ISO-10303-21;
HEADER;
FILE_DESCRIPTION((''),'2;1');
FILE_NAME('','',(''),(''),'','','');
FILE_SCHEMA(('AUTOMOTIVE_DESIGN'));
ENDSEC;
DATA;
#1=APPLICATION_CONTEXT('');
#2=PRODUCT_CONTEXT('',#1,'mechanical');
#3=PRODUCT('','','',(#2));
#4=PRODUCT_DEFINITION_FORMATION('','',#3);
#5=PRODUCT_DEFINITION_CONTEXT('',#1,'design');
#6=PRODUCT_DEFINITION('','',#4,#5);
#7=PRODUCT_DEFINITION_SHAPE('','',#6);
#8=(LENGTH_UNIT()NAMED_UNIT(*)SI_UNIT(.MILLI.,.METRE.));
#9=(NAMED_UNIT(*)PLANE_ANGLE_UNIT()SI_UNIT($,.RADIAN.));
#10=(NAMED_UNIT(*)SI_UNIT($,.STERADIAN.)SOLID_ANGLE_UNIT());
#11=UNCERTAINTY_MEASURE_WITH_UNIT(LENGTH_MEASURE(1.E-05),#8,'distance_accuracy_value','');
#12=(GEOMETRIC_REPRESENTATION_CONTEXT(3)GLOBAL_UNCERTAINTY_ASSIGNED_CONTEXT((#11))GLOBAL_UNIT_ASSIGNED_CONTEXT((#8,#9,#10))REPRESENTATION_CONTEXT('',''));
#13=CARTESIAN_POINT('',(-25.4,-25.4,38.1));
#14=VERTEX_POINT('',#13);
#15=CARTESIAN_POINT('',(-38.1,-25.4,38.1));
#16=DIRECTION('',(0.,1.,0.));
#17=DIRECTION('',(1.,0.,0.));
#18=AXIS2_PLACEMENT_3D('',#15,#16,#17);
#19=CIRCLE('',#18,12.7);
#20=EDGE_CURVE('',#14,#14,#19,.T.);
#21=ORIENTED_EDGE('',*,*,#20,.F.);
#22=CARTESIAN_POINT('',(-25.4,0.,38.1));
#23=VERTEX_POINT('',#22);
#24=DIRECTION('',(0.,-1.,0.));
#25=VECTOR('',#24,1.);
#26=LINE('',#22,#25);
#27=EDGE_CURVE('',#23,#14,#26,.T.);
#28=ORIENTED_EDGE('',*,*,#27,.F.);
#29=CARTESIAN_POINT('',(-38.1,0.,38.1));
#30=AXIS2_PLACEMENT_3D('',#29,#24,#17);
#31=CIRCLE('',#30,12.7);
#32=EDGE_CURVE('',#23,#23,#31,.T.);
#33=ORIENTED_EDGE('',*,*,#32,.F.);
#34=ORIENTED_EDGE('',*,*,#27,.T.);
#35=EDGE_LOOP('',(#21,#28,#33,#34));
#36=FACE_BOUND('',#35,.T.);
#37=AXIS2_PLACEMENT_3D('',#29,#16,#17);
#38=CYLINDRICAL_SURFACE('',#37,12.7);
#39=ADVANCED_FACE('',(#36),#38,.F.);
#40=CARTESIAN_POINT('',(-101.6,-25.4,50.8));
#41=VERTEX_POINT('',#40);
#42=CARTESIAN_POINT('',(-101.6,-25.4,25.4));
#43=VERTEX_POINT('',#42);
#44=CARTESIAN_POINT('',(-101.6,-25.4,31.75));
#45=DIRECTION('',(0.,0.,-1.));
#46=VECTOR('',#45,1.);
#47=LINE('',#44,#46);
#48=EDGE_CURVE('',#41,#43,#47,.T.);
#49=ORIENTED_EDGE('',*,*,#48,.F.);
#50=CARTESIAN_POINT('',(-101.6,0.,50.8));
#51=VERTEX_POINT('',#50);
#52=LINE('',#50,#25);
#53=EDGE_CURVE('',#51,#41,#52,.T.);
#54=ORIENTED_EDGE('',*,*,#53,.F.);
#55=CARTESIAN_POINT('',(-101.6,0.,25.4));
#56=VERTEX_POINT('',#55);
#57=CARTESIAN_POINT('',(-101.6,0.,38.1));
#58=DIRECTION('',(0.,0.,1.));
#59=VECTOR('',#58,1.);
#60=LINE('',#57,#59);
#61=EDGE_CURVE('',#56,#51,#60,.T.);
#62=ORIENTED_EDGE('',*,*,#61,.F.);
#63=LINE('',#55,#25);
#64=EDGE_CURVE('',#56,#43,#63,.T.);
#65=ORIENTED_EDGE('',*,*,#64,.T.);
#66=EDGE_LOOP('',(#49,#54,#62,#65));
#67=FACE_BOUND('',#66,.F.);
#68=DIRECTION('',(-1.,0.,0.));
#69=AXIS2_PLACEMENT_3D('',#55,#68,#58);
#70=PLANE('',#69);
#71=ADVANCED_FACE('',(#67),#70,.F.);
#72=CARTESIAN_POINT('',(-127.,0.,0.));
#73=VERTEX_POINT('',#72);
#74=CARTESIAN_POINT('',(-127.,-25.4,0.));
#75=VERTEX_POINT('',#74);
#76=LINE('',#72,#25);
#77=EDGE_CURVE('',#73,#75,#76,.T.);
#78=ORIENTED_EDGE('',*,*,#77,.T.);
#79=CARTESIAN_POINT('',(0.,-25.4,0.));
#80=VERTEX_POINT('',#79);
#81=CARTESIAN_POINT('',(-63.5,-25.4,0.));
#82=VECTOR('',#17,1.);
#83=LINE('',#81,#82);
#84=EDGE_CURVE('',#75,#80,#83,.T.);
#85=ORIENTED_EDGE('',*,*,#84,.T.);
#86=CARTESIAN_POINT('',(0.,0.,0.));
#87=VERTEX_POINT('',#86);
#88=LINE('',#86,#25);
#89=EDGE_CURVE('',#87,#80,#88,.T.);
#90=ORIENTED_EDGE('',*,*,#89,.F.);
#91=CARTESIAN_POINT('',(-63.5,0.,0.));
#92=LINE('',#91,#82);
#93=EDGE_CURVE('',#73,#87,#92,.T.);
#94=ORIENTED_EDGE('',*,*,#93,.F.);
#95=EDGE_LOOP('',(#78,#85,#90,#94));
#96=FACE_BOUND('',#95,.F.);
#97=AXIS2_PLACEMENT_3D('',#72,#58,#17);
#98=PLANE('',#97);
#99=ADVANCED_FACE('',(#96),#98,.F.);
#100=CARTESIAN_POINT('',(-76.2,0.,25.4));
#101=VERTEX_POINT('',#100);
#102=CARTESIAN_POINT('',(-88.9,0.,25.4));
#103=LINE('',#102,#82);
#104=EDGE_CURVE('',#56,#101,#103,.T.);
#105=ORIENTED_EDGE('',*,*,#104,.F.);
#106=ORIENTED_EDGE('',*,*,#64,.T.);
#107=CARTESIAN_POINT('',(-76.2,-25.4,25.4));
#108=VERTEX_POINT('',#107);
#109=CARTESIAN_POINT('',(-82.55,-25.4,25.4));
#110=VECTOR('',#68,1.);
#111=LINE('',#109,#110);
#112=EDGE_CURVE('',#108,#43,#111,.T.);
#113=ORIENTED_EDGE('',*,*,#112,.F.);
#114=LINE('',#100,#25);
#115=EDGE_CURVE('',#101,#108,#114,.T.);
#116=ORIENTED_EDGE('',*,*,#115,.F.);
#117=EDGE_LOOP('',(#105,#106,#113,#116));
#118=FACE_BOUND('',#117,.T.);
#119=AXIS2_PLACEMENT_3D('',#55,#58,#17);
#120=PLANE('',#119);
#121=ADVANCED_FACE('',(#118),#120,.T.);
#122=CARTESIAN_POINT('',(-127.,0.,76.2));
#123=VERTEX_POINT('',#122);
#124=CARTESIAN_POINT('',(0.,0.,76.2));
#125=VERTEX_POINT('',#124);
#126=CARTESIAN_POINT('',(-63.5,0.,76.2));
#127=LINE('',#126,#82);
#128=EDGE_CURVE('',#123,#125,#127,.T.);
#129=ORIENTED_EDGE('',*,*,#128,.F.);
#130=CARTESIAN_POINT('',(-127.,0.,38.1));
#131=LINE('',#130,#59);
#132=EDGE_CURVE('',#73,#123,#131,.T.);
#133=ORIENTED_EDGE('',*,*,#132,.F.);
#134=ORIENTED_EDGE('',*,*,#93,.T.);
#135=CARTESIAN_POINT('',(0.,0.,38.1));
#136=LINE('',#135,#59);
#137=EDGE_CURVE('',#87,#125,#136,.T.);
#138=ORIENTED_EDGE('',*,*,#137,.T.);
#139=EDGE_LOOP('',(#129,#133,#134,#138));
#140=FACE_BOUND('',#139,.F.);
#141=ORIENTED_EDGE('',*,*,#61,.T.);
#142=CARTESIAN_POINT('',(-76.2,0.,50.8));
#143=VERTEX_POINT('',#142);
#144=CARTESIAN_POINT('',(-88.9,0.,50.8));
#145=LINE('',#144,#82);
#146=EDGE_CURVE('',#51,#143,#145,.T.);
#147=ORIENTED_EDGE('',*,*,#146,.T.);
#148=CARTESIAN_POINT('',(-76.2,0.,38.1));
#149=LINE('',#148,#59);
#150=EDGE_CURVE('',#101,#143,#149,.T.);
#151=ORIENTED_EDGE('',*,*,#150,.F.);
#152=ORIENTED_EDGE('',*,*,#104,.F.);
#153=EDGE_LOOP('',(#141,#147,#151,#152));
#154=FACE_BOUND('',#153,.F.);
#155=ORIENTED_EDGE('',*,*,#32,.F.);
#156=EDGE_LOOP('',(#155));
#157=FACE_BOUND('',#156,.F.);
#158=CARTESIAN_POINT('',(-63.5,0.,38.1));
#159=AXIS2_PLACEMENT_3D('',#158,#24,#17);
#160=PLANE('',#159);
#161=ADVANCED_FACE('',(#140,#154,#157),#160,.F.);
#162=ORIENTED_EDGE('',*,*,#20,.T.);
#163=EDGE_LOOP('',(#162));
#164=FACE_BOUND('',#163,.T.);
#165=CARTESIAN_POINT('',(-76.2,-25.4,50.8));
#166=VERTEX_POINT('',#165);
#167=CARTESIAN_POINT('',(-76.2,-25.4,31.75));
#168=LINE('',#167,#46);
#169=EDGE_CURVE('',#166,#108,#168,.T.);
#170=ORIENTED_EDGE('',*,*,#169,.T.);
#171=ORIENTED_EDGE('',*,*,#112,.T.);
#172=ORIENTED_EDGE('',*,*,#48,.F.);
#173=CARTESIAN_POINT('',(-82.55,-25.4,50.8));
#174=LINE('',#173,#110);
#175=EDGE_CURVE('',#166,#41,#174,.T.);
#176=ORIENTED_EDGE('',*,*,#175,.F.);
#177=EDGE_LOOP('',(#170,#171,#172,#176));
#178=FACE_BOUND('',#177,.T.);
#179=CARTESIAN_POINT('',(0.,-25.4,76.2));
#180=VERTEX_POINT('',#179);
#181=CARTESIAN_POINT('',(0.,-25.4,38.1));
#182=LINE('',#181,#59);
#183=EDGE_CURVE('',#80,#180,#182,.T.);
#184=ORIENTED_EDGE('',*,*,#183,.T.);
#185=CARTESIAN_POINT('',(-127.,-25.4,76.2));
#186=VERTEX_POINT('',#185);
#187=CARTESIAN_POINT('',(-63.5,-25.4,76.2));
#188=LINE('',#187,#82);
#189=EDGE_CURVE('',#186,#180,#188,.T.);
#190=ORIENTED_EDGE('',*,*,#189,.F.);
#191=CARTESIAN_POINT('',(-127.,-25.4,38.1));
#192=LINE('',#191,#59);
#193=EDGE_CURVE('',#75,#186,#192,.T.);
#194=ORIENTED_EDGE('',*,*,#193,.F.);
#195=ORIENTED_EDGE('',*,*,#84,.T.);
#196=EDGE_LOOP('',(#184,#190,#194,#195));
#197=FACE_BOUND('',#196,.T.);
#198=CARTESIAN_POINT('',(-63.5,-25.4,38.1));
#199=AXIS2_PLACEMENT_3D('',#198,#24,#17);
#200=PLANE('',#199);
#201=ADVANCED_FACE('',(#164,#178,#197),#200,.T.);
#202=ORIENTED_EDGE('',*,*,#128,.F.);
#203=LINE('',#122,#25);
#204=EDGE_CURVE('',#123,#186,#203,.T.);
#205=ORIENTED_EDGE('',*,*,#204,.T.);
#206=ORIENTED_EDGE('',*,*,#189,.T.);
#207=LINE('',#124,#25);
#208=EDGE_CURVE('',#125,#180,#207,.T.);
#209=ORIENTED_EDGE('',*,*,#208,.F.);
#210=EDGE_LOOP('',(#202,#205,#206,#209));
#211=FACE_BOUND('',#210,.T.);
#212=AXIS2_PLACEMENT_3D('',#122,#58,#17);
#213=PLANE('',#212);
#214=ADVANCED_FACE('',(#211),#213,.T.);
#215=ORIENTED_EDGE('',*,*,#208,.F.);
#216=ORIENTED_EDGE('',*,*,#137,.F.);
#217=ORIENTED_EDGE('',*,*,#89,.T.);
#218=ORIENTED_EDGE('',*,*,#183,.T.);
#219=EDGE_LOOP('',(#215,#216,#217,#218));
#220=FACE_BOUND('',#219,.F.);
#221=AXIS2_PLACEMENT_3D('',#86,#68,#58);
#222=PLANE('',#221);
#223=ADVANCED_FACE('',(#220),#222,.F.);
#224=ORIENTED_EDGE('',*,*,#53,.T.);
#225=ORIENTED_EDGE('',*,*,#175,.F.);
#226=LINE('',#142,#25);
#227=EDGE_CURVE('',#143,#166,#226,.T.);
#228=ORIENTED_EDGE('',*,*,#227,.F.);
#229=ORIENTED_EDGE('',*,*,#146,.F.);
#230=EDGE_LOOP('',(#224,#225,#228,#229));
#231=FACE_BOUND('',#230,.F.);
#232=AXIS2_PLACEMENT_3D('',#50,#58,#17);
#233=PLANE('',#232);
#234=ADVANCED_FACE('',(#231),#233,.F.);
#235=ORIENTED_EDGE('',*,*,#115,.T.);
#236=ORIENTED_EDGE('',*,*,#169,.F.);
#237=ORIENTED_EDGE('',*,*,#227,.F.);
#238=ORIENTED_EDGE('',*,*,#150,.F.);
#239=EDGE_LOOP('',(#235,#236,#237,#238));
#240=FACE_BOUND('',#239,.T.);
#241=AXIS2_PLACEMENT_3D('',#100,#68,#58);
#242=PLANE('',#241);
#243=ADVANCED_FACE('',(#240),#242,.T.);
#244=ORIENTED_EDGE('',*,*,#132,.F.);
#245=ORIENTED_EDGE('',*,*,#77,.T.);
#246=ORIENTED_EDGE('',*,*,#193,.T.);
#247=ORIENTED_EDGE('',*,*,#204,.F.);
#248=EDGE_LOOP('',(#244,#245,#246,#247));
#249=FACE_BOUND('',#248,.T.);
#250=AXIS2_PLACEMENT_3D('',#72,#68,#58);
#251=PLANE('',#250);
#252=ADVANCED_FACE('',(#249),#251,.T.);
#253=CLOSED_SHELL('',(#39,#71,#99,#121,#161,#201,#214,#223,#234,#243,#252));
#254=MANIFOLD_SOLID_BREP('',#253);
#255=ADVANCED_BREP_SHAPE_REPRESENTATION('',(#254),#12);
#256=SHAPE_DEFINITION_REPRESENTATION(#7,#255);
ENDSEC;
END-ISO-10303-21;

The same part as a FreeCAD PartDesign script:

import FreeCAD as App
import Part
import Sketcher

V = App.Vector
Q = App.Units.Quantity

doc = App.newDocument("Part")
params = doc.addObject("Spreadsheet::Sheet", "Params")
for row, (alias, value) in enumerate([
    ("sketch1_width", "5 in"),
    ("sketch1_height", "3 in"),
    ("pad1_length", "1 in"),
    ("sketch2_diameter", "1 in"),
    ("sketch2_width", "1 in"),
    ("pocket1_length", "1.6 in"),
], start=1):
    params.set(f"A{row}", alias)
    params.set(f"B{row}", "=" + value)
    params.setAlias(f"B{row}", alias)

body = doc.addObject("PartDesign::Body", "Body")

# Sketch on XZ plane
sketch1 = body.newObject("Sketcher::SketchObject", "Sketch")
sketch1.AttachmentSupport = (doc.getObject("XZ_Plane"), [""])
sketch1.MapMode = "FlatFace"
sketch1.addGeometry([
    Part.LineSegment(V(-127, 76, 0), V(-127, 0, 0)),
    Part.LineSegment(V(-127, 0, 0), V(0, 0, 0)),
    Part.LineSegment(V(0, 0, 0), V(0, 76, 0)),
    Part.LineSegment(V(0, 76, 0), V(-127, 76, 0)),
], False)
sketch1.addConstraint([
    Sketcher.Constraint("Coincident", 0, 2, 1, 1),
    Sketcher.Constraint("Coincident", 1, 2, 2, 1),
    Sketcher.Constraint("Coincident", 2, 2, 3, 1),
    Sketcher.Constraint("Coincident", 3, 2, 0, 1),
    Sketcher.Constraint("Vertical", 0),
    Sketcher.Constraint("Horizontal", 1),
    Sketcher.Constraint("Vertical", 2),
    Sketcher.Constraint("Horizontal", 3),
    Sketcher.Constraint("Coincident", 1, 2, -1, 1),
    Sketcher.Constraint("DistanceX", 1, 1, 1, 2, Q("5 in")),
    Sketcher.Constraint("DistanceY", 0, 2, 0, 1, Q("3 in")),
])
sketch1.setExpression("Constraints[9]", "Params.sketch1_width")
sketch1.setExpression("Constraints[10]", "Params.sketch1_height")
pad1 = body.newObject("PartDesign::Pad", "Pad")
pad1.Profile = sketch1
pad1.setExpression("Length", "Params.pad1_length")

# Sketch on XZ plane
sketch2 = body.newObject("Sketcher::SketchObject", "Sketch001")
sketch2.AttachmentSupport = (doc.getObject("XZ_Plane"), [""])
sketch2.MapMode = "FlatFace"
sketch2.addGeometry([
    Part.Circle(V(-38, 38, 0), V(0, 0, 1), 13),  # 0
    Part.LineSegment(V(-102, 51, 0), V(-102, 25, 0)),  # 1
    Part.LineSegment(V(-102, 25, 0), V(-76, 25, 0)),  # 2
    Part.LineSegment(V(-76, 25, 0), V(-76, 51, 0)),  # 3
    Part.LineSegment(V(-76, 51, 0), V(-102, 51, 0)),  # 4
], False)
sketch2.addConstraint([
    Sketcher.Constraint("Coincident", 1, 2, 2, 1),
    Sketcher.Constraint("Coincident", 2, 2, 3, 1),
    Sketcher.Constraint("Coincident", 3, 2, 4, 1),
    Sketcher.Constraint("Coincident", 4, 2, 1, 1),
    Sketcher.Constraint("Vertical", 1),
    Sketcher.Constraint("Horizontal", 2),
    Sketcher.Constraint("Vertical", 3),
    Sketcher.Constraint("Horizontal", 4),
    Sketcher.Constraint("Equal", 4, 1),
    Sketcher.Constraint("Diameter", 0, Q("1 in")),
    Sketcher.Constraint("DistanceX", 2, 1, 2, 2, Q("1 in")),
    Sketcher.Constraint("DistanceX", 1, 2, -1, 1, Q("4 in")),
    Sketcher.Constraint("DistanceY", -1, 1, 1, 2, Q("1 in")),
    Sketcher.Constraint("DistanceX", 0, 3, -1, 1, Q("1.5 in")),
    Sketcher.Constraint("DistanceY", -1, 1, 0, 3, Q("1.5 in")),
])
sketch2.setExpression("Constraints[9]", "Params.sketch2_diameter")
sketch2.setExpression("Constraints[10]", "Params.sketch2_width")
pocket1 = body.newObject("PartDesign::Pocket", "Pocket")
pocket1.Profile = sketch2
pocket1.setExpression("Length", "Params.pocket1_length")
pocket1.Reversed = True

doc.recompute()
